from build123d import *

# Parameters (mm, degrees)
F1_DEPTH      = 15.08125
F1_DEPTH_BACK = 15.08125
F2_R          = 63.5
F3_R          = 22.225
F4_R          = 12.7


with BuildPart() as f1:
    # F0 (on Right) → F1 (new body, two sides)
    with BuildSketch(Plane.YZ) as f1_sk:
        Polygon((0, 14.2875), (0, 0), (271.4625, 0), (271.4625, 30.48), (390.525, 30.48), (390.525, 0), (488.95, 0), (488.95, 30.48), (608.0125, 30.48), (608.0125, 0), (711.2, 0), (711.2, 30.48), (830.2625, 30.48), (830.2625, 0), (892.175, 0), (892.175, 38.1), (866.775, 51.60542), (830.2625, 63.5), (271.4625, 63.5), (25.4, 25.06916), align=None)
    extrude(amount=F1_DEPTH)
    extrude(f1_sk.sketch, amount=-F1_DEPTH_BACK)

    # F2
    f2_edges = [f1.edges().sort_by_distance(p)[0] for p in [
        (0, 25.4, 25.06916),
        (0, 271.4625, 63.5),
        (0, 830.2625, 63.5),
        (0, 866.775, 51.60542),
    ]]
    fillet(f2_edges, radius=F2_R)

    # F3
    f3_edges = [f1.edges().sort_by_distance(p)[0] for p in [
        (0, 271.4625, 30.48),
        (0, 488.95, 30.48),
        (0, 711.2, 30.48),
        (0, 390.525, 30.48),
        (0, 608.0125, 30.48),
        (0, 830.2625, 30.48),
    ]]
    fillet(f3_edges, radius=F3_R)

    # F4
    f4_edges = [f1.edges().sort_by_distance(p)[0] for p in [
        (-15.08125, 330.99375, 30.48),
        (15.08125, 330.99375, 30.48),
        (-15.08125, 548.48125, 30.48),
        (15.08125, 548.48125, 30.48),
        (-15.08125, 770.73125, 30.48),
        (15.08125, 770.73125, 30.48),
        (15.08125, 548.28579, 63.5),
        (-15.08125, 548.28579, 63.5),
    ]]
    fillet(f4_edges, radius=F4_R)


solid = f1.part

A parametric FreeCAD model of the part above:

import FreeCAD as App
import Part
import Sketcher

V = App.Vector
Q = App.Units.Quantity


def edges_at(feature, points):
    """Names of the edges that pass closest to the given points."""
    edges = feature.Shape.Edges
    near = lambda p: min(range(len(edges)), key=lambda i: edges[i].distToShape(Part.Vertex(*p))[0])
    return sorted({f"Edge{near(p) + 1}" for p in points})


def add_polygon(sketch, points):
    """Adds a closed chain of lines whose ends are joined by coincident constraints."""
    first, n = sketch.GeometryCount, len(points)
    for a, b in zip(points, points[1:] + points[:1]):
        sketch.addGeometry(Part.LineSegment(App.Vector(*a, 0), App.Vector(*b, 0)), False)
    for i in range(n):
        sketch.addConstraint(Sketcher.Constraint("Coincident", first + i, 2, first + (i + 1) % n, 1))

doc = App.newDocument("Part")
body = doc.addObject("PartDesign::Body", "Body")

# Sketch on YZ plane
sketch1 = body.newObject("Sketcher::SketchObject", "Sketch")
sketch1.AttachmentSupport = (doc.getObject("YZ_Plane"), [""])
sketch1.MapMode = "FlatFace"
add_polygon(sketch1, [(0, 14), (0, 0), (271, 0), (271, 30), (391, 30), (391, 0), (489, 0), (489, 30), (608, 30), (608, 0), (711, 0), (711, 30), (830, 30), (830, 0), (892, 0), (892, 38), (867, 52), (830, 64), (271, 64), (25, 25)])  # lines 0-19
sketch1.addConstraint(Sketcher.Constraint("Vertical", 0))
sketch1.addConstraint(Sketcher.Constraint("Horizontal", 1))
sketch1.addConstraint(Sketcher.Constraint("Vertical", 2))
sketch1.addConstraint(Sketcher.Constraint("Horizontal", 3))
sketch1.addConstraint(Sketcher.Constraint("Vertical", 4))
sketch1.addConstraint(Sketcher.Constraint("Horizontal", 5))
sketch1.addConstraint(Sketcher.Constraint("Vertical", 6))
sketch1.addConstraint(Sketcher.Constraint("Horizontal", 7))
sketch1.addConstraint(Sketcher.Constraint("Vertical", 8))
sketch1.addConstraint(Sketcher.Constraint("Horizontal", 9))
sketch1.addConstraint(Sketcher.Constraint("Vertical", 10))
sketch1.addConstraint(Sketcher.Constraint("Horizontal", 11))
sketch1.addConstraint(Sketcher.Constraint("Vertical", 12))
sketch1.addConstraint(Sketcher.Constraint("Horizontal", 13))
sketch1.addConstraint(Sketcher.Constraint("Vertical", 14))
sketch1.addConstraint(Sketcher.Constraint("Horizontal", 17))
sketch1.addConstraint(Sketcher.Constraint("Coincident", 0, 2, -1, 1))
sketch1.addConstraint(Sketcher.Constraint("PointOnObject", 4, 2, -1))
sketch1.addConstraint(Sketcher.Constraint("PointOnObject", 8, 2, -1))
sketch1.addConstraint(Sketcher.Constraint("PointOnObject", 12, 2, -1))
sketch1.addConstraint(Sketcher.Constraint("Horizontal", 3, 2, 6, 2))
sketch1.addConstraint(Sketcher.Constraint("Horizontal", 7, 2, 10, 2))
sketch1.addConstraint(Sketcher.Constraint("Vertical", 12, 2, 16, 2))
sketch1.addConstraint(Sketcher.Constraint("Vertical", 2, 2, 17, 2))
sketch1.addConstraint(Sketcher.Constraint("Equal", 3, 7))
sketch1.addConstraint(Sketcher.Constraint("Equal", 7, 11))
sketch1.addConstraint(Sketcher.Constraint("DistanceX", 17, 2, 17, 1, Q("22 in")))
sketch1.addConstraint(Sketcher.Constraint("DistanceY", 2, 1, 2, 2, Q("1.2 in")))
sketch1.addConstraint(Sketcher.Constraint("DistanceY", 14, 1, 14, 2, Q("1.5 in")))
sketch1.addConstraint(Sketcher.Constraint("DistanceX", -1, 1, 9, 2, Q("28 in")))
sketch1.addConstraint(Sketcher.Constraint("DistanceX", -1, 1, 18, 2, Q("1 in")))
sketch1.addConstraint(Sketcher.Constraint("Angle", 15, Q("151.999999 deg")))
sketch1.addConstraint(Sketcher.Constraint("Angle", 19, Q("-157.000001 deg")))
sketch1.addConstraint(Sketcher.Constraint("DistanceX", 15, 2, 14, 2, Q("1 in")))
sketch1.addConstraint(Sketcher.Constraint("DistanceY", 14, 2, 16, 2, Q("1 in")))
sketch1.addConstraint(Sketcher.Constraint("DistanceX", 1, 1, 1, 2, Q("10.6875 in")))
sketch1.addConstraint(Sketcher.Constraint("DistanceX", 5, 1, 5, 2, Q("3.875 in")))
sketch1.addConstraint(Sketcher.Constraint("DistanceX", 13, 1, 13, 2, Q("2.4375 in")))
sketch1.addConstraint(Sketcher.Constraint("DistanceY", 0, 2, 0, 1, Q("0.5625 in")))
pad1 = body.newObject("PartDesign::Pad", "Pad")
pad1.Profile = sketch1
pad1.Type = "TwoLengths"
pad1.Length = Q("0.59375 in")
pad1.Length2 = Q("0.59375 in")
doc.recompute()

fillet = body.newObject("PartDesign::Fillet", "Fillet")
fillet.Base = (pad1, edges_at(pad1, [
    (0, 25.4, 25.069),
    (0, 271.462, 63.5),
    (0, 830.263, 63.5),
    (0, 866.775, 51.605),
]))
fillet.Radius = Q("2.5 in")
doc.recompute()

fillet2 = body.newObject("PartDesign::Fillet", "Fillet001")
fillet2.Base = (fillet, edges_at(fillet, [
    (0, 271.462, 30.48),
    (0, 488.95, 30.48),
    (0, 711.2, 30.48),
    (0, 390.525, 30.48),
    (0, 608.013, 30.48),
    (0, 830.263, 30.48),
]))
fillet2.Radius = Q("0.875 in")
doc.recompute()

fillet3 = body.newObject("PartDesign::Fillet", "Fillet002")
fillet3.Base = (fillet2, edges_at(fillet2, [
    (-15.081, 330.994, 30.48),
    (15.081, 330.994, 30.48),
    (-15.081, 548.481, 30.48),
    (15.081, 548.481, 30.48),
    (-15.081, 770.731, 30.48),
    (15.081, 770.731, 30.48),
    (15.081, 548.286, 63.5),
    (-15.081, 548.286, 63.5),
]))
fillet3.Radius = Q("0.5 in")

doc.recompute()
